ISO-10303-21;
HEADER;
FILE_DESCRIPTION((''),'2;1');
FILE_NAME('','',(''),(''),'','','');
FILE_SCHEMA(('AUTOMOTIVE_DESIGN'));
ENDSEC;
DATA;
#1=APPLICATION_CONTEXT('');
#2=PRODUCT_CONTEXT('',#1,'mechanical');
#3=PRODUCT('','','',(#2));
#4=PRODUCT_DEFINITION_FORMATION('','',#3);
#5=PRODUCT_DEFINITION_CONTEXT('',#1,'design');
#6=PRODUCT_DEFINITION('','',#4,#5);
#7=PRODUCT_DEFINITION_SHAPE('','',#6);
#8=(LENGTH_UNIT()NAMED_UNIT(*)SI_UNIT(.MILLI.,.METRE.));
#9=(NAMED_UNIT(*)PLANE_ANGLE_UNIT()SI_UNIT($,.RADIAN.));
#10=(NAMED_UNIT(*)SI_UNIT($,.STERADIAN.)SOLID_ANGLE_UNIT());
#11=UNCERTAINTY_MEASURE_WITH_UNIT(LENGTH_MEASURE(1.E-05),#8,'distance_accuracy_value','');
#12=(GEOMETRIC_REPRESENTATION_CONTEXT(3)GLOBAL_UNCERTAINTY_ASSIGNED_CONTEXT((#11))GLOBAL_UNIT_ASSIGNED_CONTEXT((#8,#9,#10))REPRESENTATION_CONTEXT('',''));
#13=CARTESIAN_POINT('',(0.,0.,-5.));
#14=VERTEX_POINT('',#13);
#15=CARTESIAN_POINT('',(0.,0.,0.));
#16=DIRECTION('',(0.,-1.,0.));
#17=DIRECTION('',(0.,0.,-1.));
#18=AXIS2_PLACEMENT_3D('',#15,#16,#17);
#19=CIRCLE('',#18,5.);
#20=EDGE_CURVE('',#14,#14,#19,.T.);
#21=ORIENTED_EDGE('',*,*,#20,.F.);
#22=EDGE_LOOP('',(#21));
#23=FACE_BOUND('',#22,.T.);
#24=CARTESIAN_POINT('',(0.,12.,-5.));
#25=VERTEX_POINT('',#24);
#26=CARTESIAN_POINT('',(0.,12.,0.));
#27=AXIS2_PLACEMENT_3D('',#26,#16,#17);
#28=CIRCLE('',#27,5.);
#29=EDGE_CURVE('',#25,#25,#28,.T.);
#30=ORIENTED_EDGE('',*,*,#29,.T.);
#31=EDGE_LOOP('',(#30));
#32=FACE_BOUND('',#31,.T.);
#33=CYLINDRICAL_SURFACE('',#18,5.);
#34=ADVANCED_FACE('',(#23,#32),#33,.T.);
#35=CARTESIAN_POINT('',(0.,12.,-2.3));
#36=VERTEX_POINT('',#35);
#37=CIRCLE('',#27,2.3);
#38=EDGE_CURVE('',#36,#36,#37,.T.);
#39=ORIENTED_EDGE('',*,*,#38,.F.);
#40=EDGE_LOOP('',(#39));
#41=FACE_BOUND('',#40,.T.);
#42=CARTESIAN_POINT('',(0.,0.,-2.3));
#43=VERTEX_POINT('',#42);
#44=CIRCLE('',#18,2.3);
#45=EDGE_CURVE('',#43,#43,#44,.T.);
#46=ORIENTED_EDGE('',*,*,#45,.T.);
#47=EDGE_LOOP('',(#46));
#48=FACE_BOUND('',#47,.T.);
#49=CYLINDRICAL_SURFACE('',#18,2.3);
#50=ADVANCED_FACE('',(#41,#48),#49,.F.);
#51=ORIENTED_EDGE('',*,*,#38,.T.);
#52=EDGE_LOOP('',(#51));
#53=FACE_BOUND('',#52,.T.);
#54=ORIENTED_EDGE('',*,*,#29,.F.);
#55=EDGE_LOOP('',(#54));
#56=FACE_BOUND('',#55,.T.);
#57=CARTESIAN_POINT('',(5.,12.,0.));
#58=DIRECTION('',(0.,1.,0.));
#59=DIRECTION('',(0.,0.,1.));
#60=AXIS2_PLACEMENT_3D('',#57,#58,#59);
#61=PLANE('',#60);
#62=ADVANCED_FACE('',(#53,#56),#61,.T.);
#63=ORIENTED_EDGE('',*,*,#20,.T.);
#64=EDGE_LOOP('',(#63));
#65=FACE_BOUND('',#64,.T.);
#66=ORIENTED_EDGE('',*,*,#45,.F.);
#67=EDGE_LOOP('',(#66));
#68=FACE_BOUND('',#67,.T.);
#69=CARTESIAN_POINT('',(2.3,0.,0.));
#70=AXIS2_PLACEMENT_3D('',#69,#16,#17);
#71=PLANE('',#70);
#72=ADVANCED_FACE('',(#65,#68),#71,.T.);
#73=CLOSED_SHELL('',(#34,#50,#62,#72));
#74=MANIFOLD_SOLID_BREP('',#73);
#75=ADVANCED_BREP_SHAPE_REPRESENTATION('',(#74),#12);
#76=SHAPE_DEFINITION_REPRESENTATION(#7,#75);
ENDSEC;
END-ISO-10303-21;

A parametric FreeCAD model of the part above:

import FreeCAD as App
import Part
import Sketcher

V = App.Vector
Q = App.Units.Quantity

doc = App.newDocument("Part")
body = doc.addObject("PartDesign::Body", "Body")

# Sketch on XY plane
sketch1 = body.newObject("Sketcher::SketchObject", "Sketch")
sketch1.AttachmentSupport = (doc.getObject("XY_Plane"), [""])
sketch1.MapMode = "FlatFace"
sketch1.addGeometry(Part.LineSegment(V(2.3, 12, 0), V(2.3, 0, 0)), False)
sketch1.addGeometry(Part.LineSegment(V(2.3, 0, 0), V(5, 0, 0)), False)
sketch1.addGeometry(Part.LineSegment(V(5, 0, 0), V(5, 12, 0)), False)
sketch1.addGeometry(Part.LineSegment(V(5, 12, 0), V(2.3, 12, 0)), False)
sketch1.addConstraint(Sketcher.Constraint("Coincident", 0, 2, 1, 1))
sketch1.addConstraint(Sketcher.Constraint("Coincident", 1, 2, 2, 1))
sketch1.addConstraint(Sketcher.Constraint("Coincident", 2, 2, 3, 1))
sketch1.addConstraint(Sketcher.Constraint("Coincident", 3, 2, 0, 1))
sketch1.addConstraint(Sketcher.Constraint("Vertical", 0))
sketch1.addConstraint(Sketcher.Constraint("Horizontal", 1))
sketch1.addConstraint(Sketcher.Constraint("Vertical", 2))
sketch1.addConstraint(Sketcher.Constraint("Horizontal", 3))
sketch1.addConstraint(Sketcher.Constraint("PointOnObject", 0, 2, -1))
sketch1.addConstraint(Sketcher.Constraint("DistanceY", 0, 2, 0, 1, Q("12 mm")))
sketch1.addConstraint(Sketcher.Constraint("DistanceX", 1, 1, 1, 2, Q("2.7 mm")))
sketch1.addConstraint(Sketcher.Constraint("DistanceX", -1, 1, 1, 2, Q("5 mm")))
revolution = body.newObject("PartDesign::Revolution", "Revolution")
revolution.Profile = sketch1
revolution.ReferenceAxis = (sketch1, ["V_Axis"])
revolution.Angle = 360

doc.recompute()
